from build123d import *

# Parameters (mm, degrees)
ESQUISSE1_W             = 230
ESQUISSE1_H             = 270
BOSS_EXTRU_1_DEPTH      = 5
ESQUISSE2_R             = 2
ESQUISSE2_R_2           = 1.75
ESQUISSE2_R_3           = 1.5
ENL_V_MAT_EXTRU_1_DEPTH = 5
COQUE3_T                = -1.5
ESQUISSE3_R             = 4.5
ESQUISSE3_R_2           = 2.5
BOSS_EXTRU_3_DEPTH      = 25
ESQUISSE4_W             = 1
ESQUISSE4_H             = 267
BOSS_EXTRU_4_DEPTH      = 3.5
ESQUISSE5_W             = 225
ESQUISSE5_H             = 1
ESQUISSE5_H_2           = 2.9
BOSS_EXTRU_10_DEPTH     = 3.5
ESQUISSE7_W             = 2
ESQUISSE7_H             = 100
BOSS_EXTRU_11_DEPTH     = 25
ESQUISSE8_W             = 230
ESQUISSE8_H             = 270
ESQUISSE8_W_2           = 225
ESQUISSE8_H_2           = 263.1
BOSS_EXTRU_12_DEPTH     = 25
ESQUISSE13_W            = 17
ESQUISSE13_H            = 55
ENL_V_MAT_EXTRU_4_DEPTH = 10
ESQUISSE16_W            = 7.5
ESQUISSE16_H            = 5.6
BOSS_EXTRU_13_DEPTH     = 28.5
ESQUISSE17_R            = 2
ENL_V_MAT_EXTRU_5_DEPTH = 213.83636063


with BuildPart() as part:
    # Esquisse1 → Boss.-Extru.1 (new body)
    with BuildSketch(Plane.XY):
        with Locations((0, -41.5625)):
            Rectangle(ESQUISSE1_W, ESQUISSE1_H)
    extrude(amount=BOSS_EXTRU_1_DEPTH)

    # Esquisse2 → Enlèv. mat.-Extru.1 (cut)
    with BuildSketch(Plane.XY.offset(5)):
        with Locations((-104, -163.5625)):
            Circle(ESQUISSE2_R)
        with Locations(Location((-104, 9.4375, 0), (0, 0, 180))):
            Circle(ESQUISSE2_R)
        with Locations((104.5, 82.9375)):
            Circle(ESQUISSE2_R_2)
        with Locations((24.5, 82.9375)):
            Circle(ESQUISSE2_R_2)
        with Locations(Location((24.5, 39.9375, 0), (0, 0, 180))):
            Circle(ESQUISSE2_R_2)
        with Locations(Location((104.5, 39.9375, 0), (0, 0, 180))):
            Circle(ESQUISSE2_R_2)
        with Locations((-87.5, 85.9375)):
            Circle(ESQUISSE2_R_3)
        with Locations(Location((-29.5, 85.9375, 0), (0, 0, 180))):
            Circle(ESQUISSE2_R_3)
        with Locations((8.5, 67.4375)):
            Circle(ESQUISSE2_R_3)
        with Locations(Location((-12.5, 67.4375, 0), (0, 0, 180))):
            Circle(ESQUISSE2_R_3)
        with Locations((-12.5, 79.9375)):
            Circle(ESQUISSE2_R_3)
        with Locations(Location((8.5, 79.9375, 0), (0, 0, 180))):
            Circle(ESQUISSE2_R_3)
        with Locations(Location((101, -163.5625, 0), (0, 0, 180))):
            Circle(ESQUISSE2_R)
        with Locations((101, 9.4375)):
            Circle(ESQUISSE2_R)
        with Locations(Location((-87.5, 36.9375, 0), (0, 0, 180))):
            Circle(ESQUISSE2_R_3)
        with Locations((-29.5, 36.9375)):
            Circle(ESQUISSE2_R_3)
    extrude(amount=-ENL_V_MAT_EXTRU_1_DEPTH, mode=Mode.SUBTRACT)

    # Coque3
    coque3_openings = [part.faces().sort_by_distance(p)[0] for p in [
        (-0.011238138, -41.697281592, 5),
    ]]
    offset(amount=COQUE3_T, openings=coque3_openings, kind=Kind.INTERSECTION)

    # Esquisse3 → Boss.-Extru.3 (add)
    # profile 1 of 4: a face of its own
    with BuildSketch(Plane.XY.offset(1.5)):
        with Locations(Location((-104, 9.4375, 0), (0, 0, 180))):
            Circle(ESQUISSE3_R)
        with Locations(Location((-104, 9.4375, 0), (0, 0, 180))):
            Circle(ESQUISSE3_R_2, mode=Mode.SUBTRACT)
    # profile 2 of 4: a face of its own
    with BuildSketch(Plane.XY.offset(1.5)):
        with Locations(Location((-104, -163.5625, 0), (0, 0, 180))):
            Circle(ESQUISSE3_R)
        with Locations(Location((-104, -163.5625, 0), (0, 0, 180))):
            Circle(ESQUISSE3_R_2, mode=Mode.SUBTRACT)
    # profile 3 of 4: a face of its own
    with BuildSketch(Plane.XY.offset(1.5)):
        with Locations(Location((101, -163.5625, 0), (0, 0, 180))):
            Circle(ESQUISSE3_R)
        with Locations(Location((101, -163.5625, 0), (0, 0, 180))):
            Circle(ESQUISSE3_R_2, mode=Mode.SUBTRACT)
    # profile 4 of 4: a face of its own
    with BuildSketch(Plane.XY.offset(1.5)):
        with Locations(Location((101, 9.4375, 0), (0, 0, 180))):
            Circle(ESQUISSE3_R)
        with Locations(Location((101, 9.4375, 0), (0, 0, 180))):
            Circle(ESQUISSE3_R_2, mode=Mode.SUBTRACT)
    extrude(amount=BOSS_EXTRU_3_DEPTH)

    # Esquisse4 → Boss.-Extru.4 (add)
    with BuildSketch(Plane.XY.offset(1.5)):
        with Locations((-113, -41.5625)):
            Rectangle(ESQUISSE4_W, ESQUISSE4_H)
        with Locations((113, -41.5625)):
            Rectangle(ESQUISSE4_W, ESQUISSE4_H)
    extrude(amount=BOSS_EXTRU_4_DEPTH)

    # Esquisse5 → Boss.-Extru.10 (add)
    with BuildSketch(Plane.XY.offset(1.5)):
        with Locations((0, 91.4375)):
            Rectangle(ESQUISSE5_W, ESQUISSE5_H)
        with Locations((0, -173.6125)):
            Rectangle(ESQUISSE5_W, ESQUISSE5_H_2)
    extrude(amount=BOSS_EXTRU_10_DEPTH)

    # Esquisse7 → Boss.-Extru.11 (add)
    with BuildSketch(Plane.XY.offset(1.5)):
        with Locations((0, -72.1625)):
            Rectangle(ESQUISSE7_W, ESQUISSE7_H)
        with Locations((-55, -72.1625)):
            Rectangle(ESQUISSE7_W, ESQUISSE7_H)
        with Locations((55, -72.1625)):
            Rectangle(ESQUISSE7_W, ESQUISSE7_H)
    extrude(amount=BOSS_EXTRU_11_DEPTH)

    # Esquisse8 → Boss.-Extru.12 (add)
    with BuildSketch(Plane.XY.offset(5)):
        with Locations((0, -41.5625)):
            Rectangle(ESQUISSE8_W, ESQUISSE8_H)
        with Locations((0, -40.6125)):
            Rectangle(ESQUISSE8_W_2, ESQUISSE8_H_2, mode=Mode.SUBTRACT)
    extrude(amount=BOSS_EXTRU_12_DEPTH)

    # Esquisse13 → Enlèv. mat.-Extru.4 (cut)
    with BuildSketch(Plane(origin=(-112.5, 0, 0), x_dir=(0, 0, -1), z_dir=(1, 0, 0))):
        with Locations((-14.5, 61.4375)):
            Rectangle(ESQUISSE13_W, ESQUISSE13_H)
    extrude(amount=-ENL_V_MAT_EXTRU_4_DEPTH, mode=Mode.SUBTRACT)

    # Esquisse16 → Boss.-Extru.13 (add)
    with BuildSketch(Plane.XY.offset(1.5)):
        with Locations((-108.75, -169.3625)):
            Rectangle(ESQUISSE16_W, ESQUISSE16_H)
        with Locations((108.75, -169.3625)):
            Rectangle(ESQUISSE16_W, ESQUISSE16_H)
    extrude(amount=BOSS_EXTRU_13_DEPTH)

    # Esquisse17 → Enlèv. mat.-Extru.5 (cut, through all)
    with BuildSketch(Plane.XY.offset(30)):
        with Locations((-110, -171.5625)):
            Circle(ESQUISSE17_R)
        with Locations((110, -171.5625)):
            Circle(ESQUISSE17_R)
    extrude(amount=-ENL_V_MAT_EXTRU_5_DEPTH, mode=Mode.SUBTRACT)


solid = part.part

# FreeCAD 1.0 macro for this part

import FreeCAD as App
import Part
import Sketcher

V = App.Vector
Q = App.Units.Quantity


def faces_at(feature, points):
    """Names of the faces that lie closest to the given points."""
    faces = feature.Shape.Faces
    near = lambda p: min(range(len(faces)), key=lambda i: faces[i].distToShape(Part.Vertex(*p))[0])
    return sorted({f"Face{near(p) + 1}" for p in points})


def add_polygon(sketch, points):
    """Adds a closed chain of lines whose ends are joined by coincident constraints."""
    first, n = sketch.GeometryCount, len(points)
    for a, b in zip(points, points[1:] + points[:1]):
        sketch.addGeometry(Part.LineSegment(App.Vector(*a, 0), App.Vector(*b, 0)), False)
    for i in range(n):
        sketch.addConstraint(Sketcher.Constraint("Coincident", first + i, 2, first + (i + 1) % n, 1))

doc = App.newDocument("Part")
body = doc.addObject("PartDesign::Body", "Body")

sketch1 = body.newObject("Sketcher::SketchObject", "Sketch")
sketch1.AttachmentSupport = (doc.getObject("XY_Plane"), [""])
sketch1.MapMode = "FlatFace"
add_polygon(sketch1, [(-115, 93), (-115, -177), (115, -177), (115, 93)])
sketch1.addConstraint([
    Sketcher.Constraint("Vertical", 0),
    Sketcher.Constraint("Horizontal", 1),
    Sketcher.Constraint("Vertical", 2),
    Sketcher.Constraint("Horizontal", 3),
    Sketcher.Constraint("DistanceX", 1, 1, 1, 2, Q("230 mm")),
    Sketcher.Constraint("DistanceY", 0, 2, 0, 1, Q("270 mm")),
    Sketcher.Constraint("DistanceX", 0, 2, -1, 1, Q("115 mm")),
    Sketcher.Constraint("DistanceY", 0, 2, -1, 1, Q("176.5625 mm")),
])
pad1 = body.newObject("PartDesign::Pad", "Pad")
pad1.Profile = sketch1
pad1.Length = 5

sketch2 = body.newObject("Sketcher::SketchObject", "Sketch001")
sketch2.AttachmentSupport = (doc.getObject("XY_Plane"), [""])
sketch2.MapMode = "FlatFace"
sketch2.AttachmentOffset = App.Placement(V(0, 0, 5), App.Rotation())
sketch2.addGeometry([
    Part.Circle(V(-104, -163.6, 0), V(0, 0, 1), 2),
    Part.Circle(V(-104, 9.4, 0), V(0, 0, 1), 2),
    Part.Circle(V(104.5, 82.9, 0), V(0, 0, 1), 1.8),
    Part.Circle(V(24.5, 82.9, 0), V(0, 0, 1), 1.8),
    Part.Circle(V(24.5, 39.9, 0), V(0, 0, 1), 1.8),
    Part.Circle(V(104.5, 39.9, 0), V(0, 0, 1), 1.8),
    Part.Circle(V(-87.5, 85.9, 0), V(0, 0, 1), 1.5),
    Part.Circle(V(-29.5, 85.9, 0), V(0, 0, 1), 1.5),
    Part.Circle(V(8.5, 67.4, 0), V(0, 0, 1), 1.5),
    Part.Circle(V(-12.5, 67.4, 0), V(0, 0, 1), 1.5),
    Part.Circle(V(-12.5, 79.9, 0), V(0, 0, 1), 1.5),
    Part.Circle(V(8.5, 79.9, 0), V(0, 0, 1), 1.5),
    Part.Circle(V(101, -163.6, 0), V(0, 0, 1), 2),
    Part.Circle(V(101, 9.4, 0), V(0, 0, 1), 2),
    Part.Circle(V(-87.5, 36.9, 0), V(0, 0, 1), 1.5),
    Part.Circle(V(-29.5, 36.9, 0), V(0, 0, 1), 1.5),
], False)
sketch2.addConstraint([
    Sketcher.Constraint("Equal", 0, 1),
    Sketcher.Constraint("Equal", 2, 3),
    Sketcher.Constraint("Equal", 3, 4),
    Sketcher.Constraint("Equal", 4, 5),
    Sketcher.Constraint("Equal", 6, 7),
    Sketcher.Constraint("Equal", 7, 8),
    Sketcher.Constraint("Equal", 8, 9),
    Sketcher.Constraint("Equal", 9, 10),
    Sketcher.Constraint("Equal", 10, 11),
    Sketcher.Constraint("Equal", 1, 12),
    Sketcher.Constraint("Equal", 12, 13),
    Sketcher.Constraint("Equal", 11, 14),
    Sketcher.Constraint("Equal", 14, 15),
    Sketcher.Constraint("Horizontal", 2, 3, 3, 3),
    Sketcher.Constraint("Horizontal", 4, 3, 5, 3),
    Sketcher.Constraint("Horizontal", 6, 3, 7, 3),
    Sketcher.Constraint("Horizontal", 8, 3, 9, 3),
    Sketcher.Constraint("Horizontal", 10, 3, 11, 3),
    Sketcher.Constraint("Horizontal", 0, 3, 12, 3),
    Sketcher.Constraint("Horizontal", 1, 3, 13, 3),
    Sketcher.Constraint("Horizontal", 14, 3, 15, 3),
    Sketcher.Constraint("Vertical", 0, 3, 1, 3),
    Sketcher.Constraint("Vertical", 3, 3, 4, 3),
    Sketcher.Constraint("Vertical", 2, 3, 5, 3),
    Sketcher.Constraint("Vertical", 9, 3, 10, 3),
    Sketcher.Constraint("Vertical", 8, 3, 11, 3),
    Sketcher.Constraint("Vertical", 12, 3, 13, 3),
    Sketcher.Constraint("Vertical", 6, 3, 14, 3),
    Sketcher.Constraint("Vertical", 7, 3, 15, 3),
    Sketcher.Constraint("Diameter", 0, Q("4 mm")),
    Sketcher.Constraint("Diameter", 6, Q("3 mm")),
    Sketcher.Constraint("Diameter", 2, Q("3.5 mm")),
    Sketcher.Constraint("DistanceX", 0, 3, -1, 1, Q("104 mm")),
    Sketcher.Constraint("DistanceX", -1, 1, 12, 3, Q("101 mm")),
    Sketcher.Constraint("DistanceY", 0, 3, 1, 3, Q("173 mm")),
    Sketcher.Constraint("DistanceX", 3, 3, 2, 3, Q("80 mm")),
    Sketcher.Constraint("DistanceY", 4, 3, 3, 3, Q("43 mm")),
    Sketcher.Constraint("DistanceX", 6, 3, 3, 3, Q("112 mm")),
    Sketcher.Constraint("DistanceY", 3, 3, 6, 3, Q("3 mm")),
    Sketcher.Constraint("DistanceX", 7, 3, 3, 3, Q("54 mm")),
    Sketcher.Constraint("DistanceX", 8, 3, 3, 3, Q("16 mm")),
    Sketcher.Constraint("DistanceX", 9, 3, 8, 3, Q("21 mm")),
    Sketcher.Constraint("DistanceY", 10, 3, 7, 3, Q("6 mm")),
    Sketcher.Constraint("DistanceY", 12, 3, 8, 3, Q("231 mm")),
    Sketcher.Constraint("DistanceY", 14, 3, 6, 3, Q("49 mm")),
    Sketcher.Constraint("DistanceX", -1, 1, 2, 3, Q("104.5 mm")),
    Sketcher.Constraint("DistanceY", 1, 3, 2, 3, Q("73.5 mm")),
    Sketcher.Constraint("DistanceY", 0, 3, -1, 1, Q("163.5625 mm")),
])
pocket1 = body.newObject("PartDesign::Pocket", "Pocket")
pocket1.Profile = sketch2
pocket1.Length = 5
doc.recompute()

thickness = body.newObject("PartDesign::Thickness", "Thickness")
thickness.Base = (pocket1, faces_at(pocket1, [(0, -41.562, 5)]))
thickness.Value = 1.5
thickness.Reversed = True
thickness.Join = "Intersection"

sketch3 = body.newObject("Sketcher::SketchObject", "Sketch002")
sketch3.AttachmentSupport = (doc.getObject("XY_Plane"), [""])
sketch3.MapMode = "FlatFace"
sketch3.AttachmentOffset = App.Placement(V(0, 0, 1.5), App.Rotation())
sketch3.addGeometry([
    Part.Circle(V(-104, 9.4, 0), V(0, 0, 1), 4.5),
    Part.Circle(V(-104, 9.4, 0), V(0, 0, 1), 2.5),
    Part.Circle(V(-104, -163.6, 0), V(0, 0, 1), 4.5),
    Part.Circle(V(-104, -163.6, 0), V(0, 0, 1), 2.5),
    Part.Circle(V(101, -163.6, 0), V(0, 0, 1), 4.5),
    Part.Circle(V(101, -163.6, 0), V(0, 0, 1), 2.5),
    Part.Circle(V(101, 9.4, 0), V(0, 0, 1), 4.5),
    Part.Circle(V(101, 9.4, 0), V(0, 0, 1), 2.5),
], False)
sketch3.addConstraint([
    Sketcher.Constraint("Coincident", 1, 3, 0, 3),
    Sketcher.Constraint("Coincident", 3, 3, 2, 3),
    Sketcher.Constraint("Coincident", 5, 3, 4, 3),
    Sketcher.Constraint("Coincident", 7, 3, 6, 3),
    Sketcher.Constraint("Equal", 0, 2),
    Sketcher.Constraint("Equal", 1, 3),
    Sketcher.Constraint("Equal", 2, 4),
    Sketcher.Constraint("Equal", 3, 5),
    Sketcher.Constraint("Equal", 4, 6),
    Sketcher.Constraint("Equal", 5, 7),
    Sketcher.Constraint("Horizontal", 3, 3, 4, 3),
    Sketcher.Constraint("Horizontal", 1, 3, 6, 3),
    Sketcher.Constraint("Vertical", 1, 3, 2, 3),
    Sketcher.Constraint("Vertical", 5, 3, 6, 3),
    Sketcher.Constraint("Diameter", 0, Q("9 mm")),
    Sketcher.Constraint("Diameter", 1, Q("5 mm")),
    Sketcher.Constraint("DistanceX", 0, 3, -1, 1, Q("104 mm")),
    Sketcher.Constraint("DistanceX", -1, 1, 4, 3, Q("101 mm")),
    Sketcher.Constraint("DistanceY", 2, 3, 0, 3, Q("173 mm")),
    Sketcher.Constraint("DistanceY", -1, 1, 0, 3, Q("9.4375 mm")),
])
pad2 = body.newObject("PartDesign::Pad", "Pad001")
pad2.Profile = sketch3
pad2.Length = 25

sketch4 = body.newObject("Sketcher::SketchObject", "Sketch003")
sketch4.AttachmentSupport = (doc.getObject("XY_Plane"), [""])
sketch4.MapMode = "FlatFace"
sketch4.AttachmentOffset = App.Placement(V(0, 0, 1.5), App.Rotation())
add_polygon(sketch4, [(-113.5, 91.9), (-113.5, -175.1), (-112.5, -175.1), (-112.5, 91.9)])
add_polygon(sketch4, [(112.5, 91.9), (112.5, -175.1), (113.5, -175.1), (113.5, 91.9)])
sketch4.addConstraint([
    Sketcher.Constraint("Vertical", 0),
    Sketcher.Constraint("Horizontal", 1),
    Sketcher.Constraint("Vertical", 2),
    Sketcher.Constraint("Horizontal", 3),
    Sketcher.Constraint("Vertical", 4),
    Sketcher.Constraint("Horizontal", 5),
    Sketcher.Constraint("Vertical", 6),
    Sketcher.Constraint("Horizontal", 7),
    Sketcher.Constraint("Symmetric", 1, 2, 4, 2, -2),
    Sketcher.Constraint("Symmetric", 3, 2, 6, 2, -2),
    Sketcher.Constraint("DistanceX", 1, 1, 1, 2, Q("1 mm")),
    Sketcher.Constraint("DistanceY", 0, 2, 0, 1, Q("267 mm")),
    Sketcher.Constraint("DistanceX", 1, 2, 4, 2, Q("225 mm")),
    Sketcher.Constraint("DistanceY", 0, 2, -1, 1, Q("175.0625 mm")),
])
pad3 = body.newObject("PartDesign::Pad", "Pad002")
pad3.Profile = sketch4
pad3.Length = 3.5

sketch5 = body.newObject("Sketcher::SketchObject", "Sketch004")
sketch5.AttachmentSupport = (doc.getObject("XY_Plane"), [""])
sketch5.MapMode = "FlatFace"
sketch5.AttachmentOffset = App.Placement(V(0, 0, 1.5), App.Rotation())
add_polygon(sketch5, [(-112.5, 91.9), (-112.5, 90.9), (112.5, 90.9), (112.5, 91.9)])
add_polygon(sketch5, [(-112.5, -172.2), (-112.5, -175.1), (112.5, -175.1), (112.5, -172.2)])
sketch5.addConstraint([
    Sketcher.Constraint("Vertical", 0),
    Sketcher.Constraint("Horizontal", 1),
    Sketcher.Constraint("Vertical", 2),
    Sketcher.Constraint("Horizontal", 3),
    Sketcher.Constraint("Vertical", 4),
    Sketcher.Constraint("Horizontal", 5),
    Sketcher.Constraint("Vertical", 6),
    Sketcher.Constraint("Horizontal", 7),
    Sketcher.Constraint("Vertical", 3, 2, 4, 2),
    Sketcher.Constraint("Vertical", 2, 2, 5, 2),
    Sketcher.Constraint("DistanceX", 1, 1, 1, 2, Q("225 mm")),
    Sketcher.Constraint("DistanceY", 0, 2, 0, 1, Q("1 mm")),
    Sketcher.Constraint("DistanceY", 4, 2, 4, 1, Q("2.9 mm")),
    Sketcher.Constraint("DistanceY", 4, 2, 0, 2, Q("266 mm")),
    Sketcher.Constraint("DistanceX", 0, 2, -1, 1, Q("112.5 mm")),
    Sketcher.Constraint("DistanceY", -1, 1, 0, 2, Q("90.9375 mm")),
])
pad4 = body.newObject("PartDesign::Pad", "Pad003")
pad4.Profile = sketch5
pad4.Length = 3.5

sketch6 = body.newObject("Sketcher::SketchObject", "Sketch005")
sketch6.AttachmentSupport = (doc.getObject("XY_Plane"), [""])
sketch6.MapMode = "FlatFace"
sketch6.AttachmentOffset = App.Placement(V(0, 0, 1.5), App.Rotation())
add_polygon(sketch6, [(-1, -22.2), (-1, -122.2), (1, -122.2), (1, -22.2)])
add_polygon(sketch6, [(-56, -22.2), (-56, -122.2), (-54, -122.2), (-54, -22.2)])
add_polygon(sketch6, [(54, -22.2), (54, -122.2), (56, -122.2), (56, -22.2)])
sketch6.addConstraint([
    Sketcher.Constraint("Vertical", 0),
    Sketcher.Constraint("Horizontal", 1),
    Sketcher.Constraint("Vertical", 2),
    Sketcher.Constraint("Horizontal", 3),
    Sketcher.Constraint("Vertical", 4),
    Sketcher.Constraint("Horizontal", 5),
    Sketcher.Constraint("Vertical", 6),
    Sketcher.Constraint("Horizontal", 7),
    Sketcher.Constraint("Vertical", 8),
    Sketcher.Constraint("Horizontal", 9),
    Sketcher.Constraint("Vertical", 10),
    Sketcher.Constraint("Horizontal", 11),
    Sketcher.Constraint("Symmetric", 5, 2, 8, 2, -2),
    Sketcher.Constraint("Symmetric", 7, 2, 10, 2, -2),
    Sketcher.Constraint("Horizontal", 1, 2, 4, 2),
    Sketcher.Constraint("Horizontal", 3, 2, 6, 2),
    Sketcher.Constraint("Equal", 3, 5),
    Sketcher.Constraint("DistanceX", 1, 1, 1, 2, Q("2 mm")),
    Sketcher.Constraint("DistanceY", 0, 2, 0, 1, Q("100 mm")),
    Sketcher.Constraint("DistanceX", 0, 2, -1, 1, Q("1 mm")),
    Sketcher.Constraint("DistanceX", 4, 2, -1, 1, Q("56 mm")),
    Sketcher.Constraint("DistanceY", 0, 2, -1, 1, Q("122.1625 mm")),
])
pad5 = body.newObject("PartDesign::Pad", "Pad004")
pad5.Profile = sketch6
pad5.Length = 25

sketch7 = body.newObject("Sketcher::SketchObject", "Sketch006")
sketch7.AttachmentSupport = (doc.getObject("XY_Plane"), [""])
sketch7.MapMode = "FlatFace"
sketch7.AttachmentOffset = App.Placement(V(0, 0, 5), App.Rotation())
add_polygon(sketch7, [(-115, 93), (-115, -177), (115, -177), (115, 93)])
add_polygon(sketch7, [(112, -172), (-112, -172), (-112, 91), (112, 91)])
sketch7.addConstraint([
    Sketcher.Constraint("Vertical", 0),
    Sketcher.Constraint("Horizontal", 1),
    Sketcher.Constraint("Vertical", 2),
    Sketcher.Constraint("Horizontal", 3),
    Sketcher.Constraint("Horizontal", 4),
    Sketcher.Constraint("Vertical", 5),
    Sketcher.Constraint("Horizontal", 6),
    Sketcher.Constraint("Vertical", 7),
    Sketcher.Constraint("DistanceX", 1, 1, 1, 2, Q("230 mm")),
    Sketcher.Constraint("DistanceX", 4, 2, 4, 1, Q("225 mm")),
    Sketcher.Constraint("DistanceY", 0, 2, 0, 1, Q("270 mm")),
    Sketcher.Constraint("DistanceY", 5, 1, 5, 2, Q("263.1 mm")),
    Sketcher.Constraint("DistanceX", 0, 2, -1, 1, Q("115 mm")),
    Sketcher.Constraint("DistanceX", 4, 2, -1, 1, Q("112.5 mm")),
    Sketcher.Constraint("DistanceY", 0, 2, 4, 2, Q("4.4 mm")),
    Sketcher.Constraint("DistanceY", 0, 2, -1, 1, Q("176.5625 mm")),
])
pad6 = body.newObject("PartDesign::Pad", "Pad005")
pad6.Profile = sketch7
pad6.Length = 25

sketch8 = body.newObject("Sketcher::SketchObject", "Sketch007")
sketch8.AttachmentSupport = (doc.getObject("YZ_Plane"), [""])
sketch8.MapMode = "FlatFace"
sketch8.AttachmentOffset = App.Placement(V(0, 0, -112.5), App.Rotation())
add_polygon(sketch8, [(89, 23), (34, 23), (34, 6), (89, 6)])
sketch8.addConstraint([
    Sketcher.Constraint("Horizontal", 0),
    Sketcher.Constraint("Vertical", 1),
    Sketcher.Constraint("Horizontal", 2),
    Sketcher.Constraint("Vertical", 3),
    Sketcher.Constraint("DistanceX", 0, 2, 0, 1, Q("55 mm")),
    Sketcher.Constraint("DistanceY", 1, 2, 1, 1, Q("17 mm")),
    Sketcher.Constraint("DistanceY", -1, 1, 0, 2, Q("23 mm")),
    Sketcher.Constraint("DistanceX", -1, 1, 0, 2, Q("33.9375 mm")),
])
pocket2 = body.newObject("PartDesign::Pocket", "Pocket001")
pocket2.Profile = sketch8
pocket2.Length = 10

sketch9 = body.newObject("Sketcher::SketchObject", "Sketch008")
sketch9.AttachmentSupport = (doc.getObject("XY_Plane"), [""])
sketch9.MapMode = "FlatFace"
sketch9.AttachmentOffset = App.Placement(V(0, 0, 1.5), App.Rotation())
add_polygon(sketch9, [(-112, -167), (-112, -172), (-105, -172), (-105, -167)])
add_polygon(sketch9, [(105, -167), (105, -172), (112, -172), (112, -167)])
sketch9.addConstraint([
    Sketcher.Constraint("Vertical", 0),
    Sketcher.Constraint("Horizontal", 1),
    Sketcher.Constraint("Vertical", 2),
    Sketcher.Constraint("Horizontal", 3),
    Sketcher.Constraint("Vertical", 4),
    Sketcher.Constraint("Horizontal", 5),
    Sketcher.Constraint("Vertical", 6),
    Sketcher.Constraint("Horizontal", 7),
    Sketcher.Constraint("Symmetric", 1, 2, 4, 2, -2),
    Sketcher.Constraint("Symmetric", 3, 2, 6, 2, -2),
    Sketcher.Constraint("DistanceX", 1, 1, 1, 2, Q("7.5 mm")),
    Sketcher.Constraint("DistanceY", 0, 2, 0, 1, Q("5.6 mm")),
    Sketcher.Constraint("DistanceX", 1, 2, -1, 1, Q("105 mm")),
    Sketcher.Constraint("DistanceY", 0, 2, -1, 1, Q("172.1625 mm")),
])
pad7 = body.newObject("PartDesign::Pad", "Pad006")
pad7.Profile = sketch9
pad7.Length = 28.5

sketch10 = body.newObject("Sketcher::SketchObject", "Sketch009")
sketch10.AttachmentSupport = (doc.getObject("XY_Plane"), [""])
sketch10.MapMode = "FlatFace"
sketch10.AttachmentOffset = App.Placement(V(0, 0, 30), App.Rotation())
sketch10.addGeometry([
    Part.Circle(V(-110, -171.6, 0), V(0, 0, 1), 2),
    Part.Circle(V(110, -171.6, 0), V(0, 0, 1), 2),
], False)
sketch10.addConstraint([
    Sketcher.Constraint("Equal", 0, 1),
    Sketcher.Constraint("Symmetric", 0, 3, 1, 3, -2),
    Sketcher.Constraint("Diameter", 0, Q("4 mm")),
    Sketcher.Constraint("DistanceX", 0, 3, -1, 1, Q("110 mm")),
    Sketcher.Constraint("DistanceY", 0, 3, -1, 1, Q("171.5625 mm")),
])
pocket3 = body.newObject("PartDesign::Pocket", "Pocket002")
pocket3.Profile = sketch10
pocket3.Type = "ThroughAll"

doc.recompute()
